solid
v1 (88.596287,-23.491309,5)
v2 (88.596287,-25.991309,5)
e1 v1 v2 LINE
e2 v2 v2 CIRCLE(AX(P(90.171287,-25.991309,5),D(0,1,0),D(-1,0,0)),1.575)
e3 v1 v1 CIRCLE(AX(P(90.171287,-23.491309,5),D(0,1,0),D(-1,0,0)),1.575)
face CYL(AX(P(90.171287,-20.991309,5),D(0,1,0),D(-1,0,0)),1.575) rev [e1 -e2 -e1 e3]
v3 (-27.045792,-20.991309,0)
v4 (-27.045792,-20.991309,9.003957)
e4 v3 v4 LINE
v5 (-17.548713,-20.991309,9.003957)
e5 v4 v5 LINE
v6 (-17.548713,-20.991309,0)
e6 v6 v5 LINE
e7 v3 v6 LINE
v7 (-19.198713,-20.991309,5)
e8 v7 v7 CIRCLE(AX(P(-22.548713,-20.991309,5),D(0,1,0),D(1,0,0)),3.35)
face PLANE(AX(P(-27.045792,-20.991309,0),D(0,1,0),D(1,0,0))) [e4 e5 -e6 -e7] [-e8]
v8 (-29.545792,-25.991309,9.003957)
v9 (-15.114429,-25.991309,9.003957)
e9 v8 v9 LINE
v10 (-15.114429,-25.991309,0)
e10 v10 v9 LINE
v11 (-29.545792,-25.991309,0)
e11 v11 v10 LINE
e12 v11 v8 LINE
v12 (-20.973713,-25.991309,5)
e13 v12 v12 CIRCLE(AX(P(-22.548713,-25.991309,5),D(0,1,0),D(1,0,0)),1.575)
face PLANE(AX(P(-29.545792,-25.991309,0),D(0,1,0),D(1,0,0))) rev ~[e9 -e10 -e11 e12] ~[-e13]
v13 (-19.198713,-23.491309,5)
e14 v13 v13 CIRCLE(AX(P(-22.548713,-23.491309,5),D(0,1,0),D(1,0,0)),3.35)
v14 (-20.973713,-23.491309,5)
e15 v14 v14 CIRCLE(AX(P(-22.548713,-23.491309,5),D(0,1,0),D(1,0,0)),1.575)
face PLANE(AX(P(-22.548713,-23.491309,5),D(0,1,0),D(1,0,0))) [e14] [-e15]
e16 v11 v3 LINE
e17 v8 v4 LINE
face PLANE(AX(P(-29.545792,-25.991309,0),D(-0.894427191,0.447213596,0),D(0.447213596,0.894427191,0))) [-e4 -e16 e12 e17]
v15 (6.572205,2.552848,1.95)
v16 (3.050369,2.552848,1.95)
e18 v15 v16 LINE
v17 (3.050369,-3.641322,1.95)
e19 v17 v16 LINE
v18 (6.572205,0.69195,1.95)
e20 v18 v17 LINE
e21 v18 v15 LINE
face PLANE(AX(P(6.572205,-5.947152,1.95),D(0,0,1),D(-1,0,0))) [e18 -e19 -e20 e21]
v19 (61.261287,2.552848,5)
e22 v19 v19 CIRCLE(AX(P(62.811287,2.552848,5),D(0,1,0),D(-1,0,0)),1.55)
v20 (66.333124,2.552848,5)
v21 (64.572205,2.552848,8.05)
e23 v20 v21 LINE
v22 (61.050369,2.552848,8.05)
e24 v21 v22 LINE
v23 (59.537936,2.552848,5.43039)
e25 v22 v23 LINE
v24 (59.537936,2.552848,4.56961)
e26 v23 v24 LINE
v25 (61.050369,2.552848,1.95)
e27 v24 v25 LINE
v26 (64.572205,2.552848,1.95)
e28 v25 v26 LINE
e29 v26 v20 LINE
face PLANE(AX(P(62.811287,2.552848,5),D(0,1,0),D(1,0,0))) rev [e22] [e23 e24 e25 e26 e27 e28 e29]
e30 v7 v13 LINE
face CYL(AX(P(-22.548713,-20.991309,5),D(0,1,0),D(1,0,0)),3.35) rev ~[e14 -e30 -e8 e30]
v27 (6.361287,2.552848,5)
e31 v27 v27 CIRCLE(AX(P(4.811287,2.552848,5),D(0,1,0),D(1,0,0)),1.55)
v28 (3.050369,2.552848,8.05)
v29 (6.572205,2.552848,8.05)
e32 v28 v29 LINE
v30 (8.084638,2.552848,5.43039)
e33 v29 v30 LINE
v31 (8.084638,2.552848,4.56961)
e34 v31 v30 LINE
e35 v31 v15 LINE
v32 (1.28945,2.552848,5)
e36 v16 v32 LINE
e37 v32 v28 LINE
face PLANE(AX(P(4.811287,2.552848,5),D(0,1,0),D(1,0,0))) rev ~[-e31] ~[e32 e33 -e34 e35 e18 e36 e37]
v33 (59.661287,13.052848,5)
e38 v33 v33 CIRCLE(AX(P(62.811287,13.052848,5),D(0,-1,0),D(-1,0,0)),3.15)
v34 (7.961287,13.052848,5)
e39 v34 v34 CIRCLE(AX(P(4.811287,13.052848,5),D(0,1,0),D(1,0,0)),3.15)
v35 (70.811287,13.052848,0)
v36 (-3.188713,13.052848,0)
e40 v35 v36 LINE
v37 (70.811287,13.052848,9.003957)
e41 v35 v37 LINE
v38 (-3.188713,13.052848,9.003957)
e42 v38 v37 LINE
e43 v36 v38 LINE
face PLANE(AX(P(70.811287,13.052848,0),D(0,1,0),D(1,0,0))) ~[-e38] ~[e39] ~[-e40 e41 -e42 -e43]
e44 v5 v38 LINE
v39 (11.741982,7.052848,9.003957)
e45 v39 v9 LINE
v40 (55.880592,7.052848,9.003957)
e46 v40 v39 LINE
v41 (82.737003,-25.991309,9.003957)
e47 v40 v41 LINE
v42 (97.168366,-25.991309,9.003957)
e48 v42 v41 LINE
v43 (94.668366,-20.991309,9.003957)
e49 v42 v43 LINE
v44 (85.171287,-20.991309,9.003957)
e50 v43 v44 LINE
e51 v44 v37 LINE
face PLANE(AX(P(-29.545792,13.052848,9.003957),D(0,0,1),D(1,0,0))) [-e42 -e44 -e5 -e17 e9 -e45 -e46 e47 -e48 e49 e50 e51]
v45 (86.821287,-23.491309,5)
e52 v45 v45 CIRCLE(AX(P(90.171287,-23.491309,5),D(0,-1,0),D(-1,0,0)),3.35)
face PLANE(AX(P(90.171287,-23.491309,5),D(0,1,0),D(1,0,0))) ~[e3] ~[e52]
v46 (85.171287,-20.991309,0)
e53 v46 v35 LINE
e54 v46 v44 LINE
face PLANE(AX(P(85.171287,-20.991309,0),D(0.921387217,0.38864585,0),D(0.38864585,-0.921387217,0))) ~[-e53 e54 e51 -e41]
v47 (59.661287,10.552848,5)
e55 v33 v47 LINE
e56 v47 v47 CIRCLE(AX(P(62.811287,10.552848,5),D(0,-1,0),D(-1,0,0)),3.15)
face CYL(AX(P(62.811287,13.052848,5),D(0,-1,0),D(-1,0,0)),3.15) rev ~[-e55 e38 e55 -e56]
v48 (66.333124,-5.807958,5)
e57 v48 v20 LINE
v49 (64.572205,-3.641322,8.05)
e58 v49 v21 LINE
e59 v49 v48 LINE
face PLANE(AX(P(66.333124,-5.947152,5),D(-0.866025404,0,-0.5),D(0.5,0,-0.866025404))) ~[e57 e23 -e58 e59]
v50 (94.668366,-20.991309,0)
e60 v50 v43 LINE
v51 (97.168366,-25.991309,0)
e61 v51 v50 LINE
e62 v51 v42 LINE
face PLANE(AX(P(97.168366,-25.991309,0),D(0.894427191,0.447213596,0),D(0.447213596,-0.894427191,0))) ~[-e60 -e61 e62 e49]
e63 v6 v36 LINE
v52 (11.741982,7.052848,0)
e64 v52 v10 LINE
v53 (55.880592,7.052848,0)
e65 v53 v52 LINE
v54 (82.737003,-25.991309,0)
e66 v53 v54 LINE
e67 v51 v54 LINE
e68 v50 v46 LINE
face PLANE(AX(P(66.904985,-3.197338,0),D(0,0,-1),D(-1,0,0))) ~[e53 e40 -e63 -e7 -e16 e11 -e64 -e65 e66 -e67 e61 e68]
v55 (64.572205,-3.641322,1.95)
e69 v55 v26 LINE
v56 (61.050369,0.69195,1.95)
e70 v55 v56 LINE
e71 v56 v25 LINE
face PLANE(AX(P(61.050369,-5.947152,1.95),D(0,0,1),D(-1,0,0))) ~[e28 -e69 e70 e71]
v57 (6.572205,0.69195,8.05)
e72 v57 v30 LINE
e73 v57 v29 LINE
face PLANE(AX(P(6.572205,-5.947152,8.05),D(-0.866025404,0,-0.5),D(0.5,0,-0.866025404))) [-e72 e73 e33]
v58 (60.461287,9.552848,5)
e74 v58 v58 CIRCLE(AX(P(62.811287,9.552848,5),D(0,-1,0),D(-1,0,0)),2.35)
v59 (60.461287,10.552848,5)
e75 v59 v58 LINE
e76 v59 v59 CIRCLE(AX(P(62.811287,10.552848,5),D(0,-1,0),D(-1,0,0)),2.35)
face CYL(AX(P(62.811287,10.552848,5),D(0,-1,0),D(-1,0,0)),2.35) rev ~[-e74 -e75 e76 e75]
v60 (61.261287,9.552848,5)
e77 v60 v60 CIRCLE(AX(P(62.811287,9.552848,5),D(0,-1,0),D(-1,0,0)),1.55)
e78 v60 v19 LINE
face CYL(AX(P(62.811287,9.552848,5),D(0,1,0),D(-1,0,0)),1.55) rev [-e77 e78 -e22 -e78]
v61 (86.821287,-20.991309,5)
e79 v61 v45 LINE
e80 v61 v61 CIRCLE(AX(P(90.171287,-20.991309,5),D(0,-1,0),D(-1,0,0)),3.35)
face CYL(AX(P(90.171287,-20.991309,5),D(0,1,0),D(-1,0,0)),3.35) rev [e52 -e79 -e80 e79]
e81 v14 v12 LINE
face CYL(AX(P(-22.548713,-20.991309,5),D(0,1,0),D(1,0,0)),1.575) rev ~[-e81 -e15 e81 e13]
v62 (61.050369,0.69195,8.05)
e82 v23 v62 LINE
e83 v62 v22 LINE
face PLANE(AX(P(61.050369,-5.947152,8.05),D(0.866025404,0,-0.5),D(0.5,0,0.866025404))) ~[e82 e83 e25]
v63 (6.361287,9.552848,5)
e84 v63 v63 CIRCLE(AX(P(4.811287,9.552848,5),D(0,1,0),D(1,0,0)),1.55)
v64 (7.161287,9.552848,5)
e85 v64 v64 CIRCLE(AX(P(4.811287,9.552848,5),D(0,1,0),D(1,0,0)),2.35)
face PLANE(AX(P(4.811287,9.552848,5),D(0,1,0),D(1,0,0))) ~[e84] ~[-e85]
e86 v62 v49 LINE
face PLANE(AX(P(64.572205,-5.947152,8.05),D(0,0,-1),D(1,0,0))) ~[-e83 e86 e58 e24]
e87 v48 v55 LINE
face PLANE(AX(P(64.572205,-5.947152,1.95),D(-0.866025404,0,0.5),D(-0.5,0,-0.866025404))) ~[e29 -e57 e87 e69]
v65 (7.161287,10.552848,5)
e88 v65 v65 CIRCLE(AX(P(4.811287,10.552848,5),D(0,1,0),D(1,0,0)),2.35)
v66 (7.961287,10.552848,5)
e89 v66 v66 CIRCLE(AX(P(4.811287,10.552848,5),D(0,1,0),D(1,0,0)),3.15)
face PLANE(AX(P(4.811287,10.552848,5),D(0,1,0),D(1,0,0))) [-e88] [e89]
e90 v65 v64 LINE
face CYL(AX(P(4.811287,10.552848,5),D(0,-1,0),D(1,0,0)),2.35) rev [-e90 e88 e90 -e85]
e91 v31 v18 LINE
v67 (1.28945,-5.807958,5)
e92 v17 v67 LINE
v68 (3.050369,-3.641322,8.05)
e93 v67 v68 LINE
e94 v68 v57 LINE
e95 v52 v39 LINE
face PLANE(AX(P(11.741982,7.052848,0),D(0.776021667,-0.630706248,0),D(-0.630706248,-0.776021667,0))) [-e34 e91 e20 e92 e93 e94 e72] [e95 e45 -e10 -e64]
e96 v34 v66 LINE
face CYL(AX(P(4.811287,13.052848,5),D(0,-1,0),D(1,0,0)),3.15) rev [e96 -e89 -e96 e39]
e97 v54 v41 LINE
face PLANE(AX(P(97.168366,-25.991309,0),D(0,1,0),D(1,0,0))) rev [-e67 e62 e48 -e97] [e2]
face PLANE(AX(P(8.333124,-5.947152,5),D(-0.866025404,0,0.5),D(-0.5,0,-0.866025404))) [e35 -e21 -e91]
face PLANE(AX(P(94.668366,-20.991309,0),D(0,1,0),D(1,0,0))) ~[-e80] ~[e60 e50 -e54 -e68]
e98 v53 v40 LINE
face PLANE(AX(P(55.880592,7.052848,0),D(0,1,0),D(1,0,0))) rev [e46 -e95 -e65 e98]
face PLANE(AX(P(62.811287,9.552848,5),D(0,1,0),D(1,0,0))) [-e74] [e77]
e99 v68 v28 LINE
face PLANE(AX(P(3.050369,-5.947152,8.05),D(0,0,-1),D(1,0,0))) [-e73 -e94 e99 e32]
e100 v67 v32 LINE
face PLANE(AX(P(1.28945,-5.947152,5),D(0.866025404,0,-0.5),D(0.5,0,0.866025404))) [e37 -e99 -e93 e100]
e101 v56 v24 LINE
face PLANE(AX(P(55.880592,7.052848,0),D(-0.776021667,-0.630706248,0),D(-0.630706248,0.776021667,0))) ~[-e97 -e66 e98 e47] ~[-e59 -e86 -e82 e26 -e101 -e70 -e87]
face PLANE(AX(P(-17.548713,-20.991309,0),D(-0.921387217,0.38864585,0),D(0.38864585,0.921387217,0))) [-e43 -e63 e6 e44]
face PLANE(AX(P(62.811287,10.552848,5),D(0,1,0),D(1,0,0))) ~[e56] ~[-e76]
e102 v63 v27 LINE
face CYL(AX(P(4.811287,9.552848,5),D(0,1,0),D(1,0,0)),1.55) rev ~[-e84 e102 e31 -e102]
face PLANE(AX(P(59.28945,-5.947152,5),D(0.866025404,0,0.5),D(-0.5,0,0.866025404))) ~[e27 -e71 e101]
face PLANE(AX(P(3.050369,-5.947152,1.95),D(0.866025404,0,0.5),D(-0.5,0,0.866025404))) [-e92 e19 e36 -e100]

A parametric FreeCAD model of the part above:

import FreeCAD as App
import Part
import Sketcher

V = App.Vector
Q = App.Units.Quantity

doc = App.newDocument("Part")
body = doc.addObject("PartDesign::Body", "Body")

sketch1 = doc.addObject("Sketcher::SketchObject", "Sketch")
body.addObject(sketch1)
sketch1.AttachmentSupport = (doc.XY_Plane, [""])
sketch1.MapMode = "FlatFace"
sketch1.addGeometry(Part.LineSegment(V(34, 13, 0), V(-3, 13, 0)), False)
sketch1.addGeometry(Part.LineSegment(V(-3, 13, 0), V(-18, -21, 0)), False)
sketch1.addGeometry(Part.LineSegment(V(-18, -21, 0), V(-27, -21, 0)), False)
sketch1.addGeometry(Part.LineSegment(V(-27, -21, 0), V(-30, -26, 0)), False)
sketch1.addGeometry(Part.LineSegment(V(-30, -26, 0), V(-15, -26, 0)), False)
sketch1.addGeometry(Part.LineSegment(V(-15, -26, 0), V(12, 7, 0)), False)
sketch1.addGeometry(Part.LineSegment(V(12, 7, 0), V(34, 7, 0)), False)
sketch1.addGeometry(Part.LineSegment(V(34, 7, 0), V(34, 13, 0)), False)
sketch1.addConstraint(Sketcher.Constraint("Coincident", 0, 2, 1, 1))
sketch1.addConstraint(Sketcher.Constraint("Coincident", 1, 2, 2, 1))
sketch1.addConstraint(Sketcher.Constraint("Coincident", 2, 2, 3, 1))
sketch1.addConstraint(Sketcher.Constraint("Coincident", 3, 2, 4, 1))
sketch1.addConstraint(Sketcher.Constraint("Coincident", 4, 2, 5, 1))
sketch1.addConstraint(Sketcher.Constraint("Coincident", 5, 2, 6, 1))
sketch1.addConstraint(Sketcher.Constraint("Coincident", 6, 2, 7, 1))
sketch1.addConstraint(Sketcher.Constraint("Coincident", 7, 2, 0, 1))
sketch1.addConstraint(Sketcher.Constraint("Horizontal", 0))
sketch1.addConstraint(Sketcher.Constraint("Horizontal", 2))
sketch1.addConstraint(Sketcher.Constraint("Horizontal", 4))
sketch1.addConstraint(Sketcher.Constraint("Horizontal", 6))
sketch1.addConstraint(Sketcher.Constraint("Vertical", 7))
sketch1.addConstraint(Sketcher.Constraint("DistanceX", 0, 2, 0, 1, 37.0))
sketch1.addConstraint(Sketcher.Constraint("DistanceY", 7, 1, 7, 2, 6.0))
sketch1.addConstraint(Sketcher.Constraint("DistanceY", 3, 2, 2, 2, 5.0))
sketch1.addConstraint(Sketcher.Constraint("DistanceX", 3, 2, 2, 2, 2.5))
sketch1.addConstraint(Sketcher.Constraint("DistanceX", 1, 2, 0, 2, 14.36))
sketch1.addConstraint(Sketcher.Constraint("DistanceX", 2, 2, 2, 1, 9.497079))
sketch1.addConstraint(Sketcher.Constraint("DistanceX", 4, 1, 4, 2, 14.431363))
sketch1.addConstraint(Sketcher.Constraint("DistanceX", 6, 1, 6, 2, 22.069305))
sketch1.addConstraint(Sketcher.Constraint("DistanceY", -1, 1, 0, 2, 13.052848))
sketch1.addConstraint(Sketcher.Constraint("DistanceY", 1, 2, -1, 1, 20.991309))
sketch1.addConstraint(Sketcher.Constraint("DistanceX", 2, 2, -1, 1, 27.045792))
pad1 = doc.addObject("PartDesign::Pad", "Pad")
body.addObject(pad1)
pad1.Profile = sketch1
pad1.Length = 10
doc.recompute()

datumplane = doc.addObject("PartDesign::Plane", "DatumPlane")
body.addObject(datumplane)
datumplane.AttachmentSupport = (doc.YZ_Plane, [""])
datumplane.MapMode = "FlatFace"
datumplane.AttachmentOffset = App.Placement(V(0, 0, 33.811287), App.Rotation())
mirrored = doc.addObject("PartDesign::Mirrored", "Mirrored")
body.addObject(mirrored)
mirrored.Originals = [pad1]
mirrored.MirrorPlane = (datumplane, [""])
body.Tip = mirrored

sketch2 = doc.addObject("Sketcher::SketchObject", "Sketch001")
body.addObject(sketch2)
sketch2.AttachmentSupport = (doc.XY_Plane, [""])
sketch2.MapMode = "FlatFace"
sketch2.AttachmentOffset = App.Placement(V(0, 0, 5), App.Rotation())
sketch2.addGeometry(Part.LineSegment(V(8, 10.6, 0), V(8, 13.1, 0)), False)
sketch2.addGeometry(Part.LineSegment(V(8, 13.1, 0), V(4.8, 13.1, 0)), False)
sketch2.addGeometry(Part.LineSegment(V(4.8, 13.1, 0), V(4.8, 9.6, 0)), False)
sketch2.addGeometry(Part.LineSegment(V(4.8, 9.6, 0), V(7.2, 9.6, 0)), False)
sketch2.addGeometry(Part.LineSegment(V(7.2, 9.6, 0), V(7.2, 10.6, 0)), False)
sketch2.addGeometry(Part.LineSegment(V(7.2, 10.6, 0), V(8, 10.6, 0)), False)
sketch2.addGeometry(Part.LineSegment(V(4.8, 9.6, 0), V(4.8, 13.1, 0)), True)
sketch2.addConstraint(Sketcher.Constraint("Coincident", 0, 2, 1, 1))
sketch2.addConstraint(Sketcher.Constraint("Coincident", 1, 2, 2, 1))
sketch2.addConstraint(Sketcher.Constraint("Coincident", 2, 2, 3, 1))
sketch2.addConstraint(Sketcher.Constraint("Coincident", 3, 2, 4, 1))
sketch2.addConstraint(Sketcher.Constraint("Coincident", 4, 2, 5, 1))
sketch2.addConstraint(Sketcher.Constraint("Coincident", 5, 2, 0, 1))
sketch2.addConstraint(Sketcher.Constraint("Vertical", 0))
sketch2.addConstraint(Sketcher.Constraint("Horizontal", 1))
sketch2.addConstraint(Sketcher.Constraint("Vertical", 2))
sketch2.addConstraint(Sketcher.Constraint("Horizontal", 3))
sketch2.addConstraint(Sketcher.Constraint("Vertical", 4))
sketch2.addConstraint(Sketcher.Constraint("Horizontal", 5))
sketch2.addConstraint(Sketcher.Constraint("Vertical", 6))
sketch2.addConstraint(Sketcher.Constraint("Coincident", 6, 1, 2, 2))
sketch2.addConstraint(Sketcher.Constraint("Horizontal", 0, 2, 6, 2))
sketch2.addConstraint(Sketcher.Constraint("DistanceY", 4, 1, 4, 2, 1.0))
sketch2.addConstraint(Sketcher.Constraint("DistanceX", 5, 1, 5, 2, 0.8))
sketch2.addConstraint(Sketcher.Constraint("DistanceY", 0, 1, 0, 2, 2.5))
sketch2.addConstraint(Sketcher.Constraint("DistanceX", 1, 2, 1, 1, 3.15))
sketch2.addConstraint(Sketcher.Constraint("DistanceY", -1, 1, 0, 2, 13.052848))
sketch2.addConstraint(Sketcher.Constraint("DistanceX", -1, 1, 0, 2, 7.961287))
groove = doc.addObject("PartDesign::Groove", "Groove")
body.addObject(groove)
groove.Profile = sketch2
groove.ReferenceAxis = (sketch2, ["Axis0"])
groove.Angle = 360

sketch3 = doc.addObject("Sketcher::SketchObject", "Sketch002")
body.addObject(sketch3)
sketch3.AttachmentSupport = (doc.XZ_Plane, [""])
sketch3.MapMode = "FlatFace"
sketch3.AttachmentOffset = App.Placement(V(0, 0, -9.552848), App.Rotation())
sketch3.addGeometry(Part.Circle(V(4.8, 5, 0), V(0, 0, 1), 1.6), False)
sketch3.addConstraint(Sketcher.Constraint("Diameter", 0, 3.1))
sketch3.addConstraint(Sketcher.Constraint("DistanceY", -1, 1, 0, 3, 5.0))
sketch3.addConstraint(Sketcher.Constraint("DistanceX", -1, 1, 0, 3, 4.811287))
pocket1 = doc.addObject("PartDesign::Pocket", "Pocket")
body.addObject(pocket1)
pocket1.Profile = sketch3
pocket1.Type = "ThroughAll"
pocket1.Reversed = True

sketch4 = doc.addObject("Sketcher::SketchObject", "Sketch003")
body.addObject(sketch4)
sketch4.AttachmentSupport = (doc.XZ_Plane, [""])
sketch4.MapMode = "FlatFace"
sketch4.AttachmentOffset = App.Placement(V(0, 0, 5.947152), App.Rotation())
sketch4.addGeometry(Part.LineSegment(V(8.3, 5, 0), V(6.6, 1.9, 0)), False)
sketch4.addGeometry(Part.LineSegment(V(6.6, 1.9, 0), V(3.1, 1.9, 0)), False)
sketch4.addGeometry(Part.LineSegment(V(3.1, 1.9, 0), V(1.3, 5, 0)), False)
sketch4.addGeometry(Part.LineSegment(V(1.3, 5, 0), V(3.1, 8.1, 0)), False)
sketch4.addGeometry(Part.LineSegment(V(3.1, 8.1, 0), V(6.6, 8.1, 0)), False)
sketch4.addGeometry(Part.LineSegment(V(6.6, 8.1, 0), V(8.3, 5, 0)), False)
sketch4.addConstraint(Sketcher.Constraint("Coincident", 0, 2, 1, 1))
sketch4.addConstraint(Sketcher.Constraint("Coincident", 1, 2, 2, 1))
sketch4.addConstraint(Sketcher.Constraint("Coincident", 2, 2, 3, 1))
sketch4.addConstraint(Sketcher.Constraint("Coincident", 3, 2, 4, 1))
sketch4.addConstraint(Sketcher.Constraint("Coincident", 4, 2, 5, 1))
sketch4.addConstraint(Sketcher.Constraint("Coincident", 5, 2, 0, 1))
sketch4.addConstraint(Sketcher.Constraint("Horizontal", 1))
sketch4.addConstraint(Sketcher.Constraint("Horizontal", 4))
sketch4.addConstraint(Sketcher.Constraint("Parallel", 0, 3))
sketch4.addConstraint(Sketcher.Constraint("Parallel", 2, 5))
sketch4.addConstraint(Sketcher.Constraint("Horizontal", 2, 2, 5, 2))
sketch4.addConstraint(Sketcher.Constraint("Vertical", 1, 2, 3, 2))
sketch4.addConstraint(Sketcher.Constraint("Vertical", 0, 2, 4, 2))
sketch4.addConstraint(Sketcher.Constraint("Angle", 0, Q("-120 deg")))
sketch4.addConstraint(Sketcher.Constraint("DistanceY", -1, 1, 2, 2, 5.0))
sketch4.addConstraint(Sketcher.Constraint("DistanceY", 1, 2, 3, 2, 6.1))
sketch4.addConstraint(Sketcher.Constraint("DistanceX", 1, 2, 1, 1, 3.521837))
sketch4.addConstraint(Sketcher.Constraint("DistanceX", -1, 1, 1, 2, 3.050369))
pocket2 = doc.addObject("PartDesign::Pocket", "Pocket001")
body.addObject(pocket2)
pocket2.Profile = sketch4
pocket2.Length = 8.5

sketch5 = doc.addObject("Sketcher::SketchObject", "Sketch004")
body.addObject(sketch5)
sketch5.AttachmentSupport = (doc.XZ_Plane, [""])
sketch5.MapMode = "FlatFace"
sketch5.AttachmentOffset = App.Placement(V(0, 0, 20.991309), App.Rotation())
sketch5.addGeometry(Part.Circle(V(-22.5, 5, 0), V(0, 0, 1), 1.6), False)
sketch5.addConstraint(Sketcher.Constraint("Diameter", 0, 3.15))
sketch5.addConstraint(Sketcher.Constraint("DistanceY", -1, 1, 0, 3, 5.0))
sketch5.addConstraint(Sketcher.Constraint("DistanceX", 0, 3, -1, 1, 22.548713))
pocket3 = doc.addObject("PartDesign::Pocket", "Pocket002")
body.addObject(pocket3)
pocket3.Profile = sketch5
pocket3.Length = 10
pocket3.Reversed = True

sketch6 = doc.addObject("Sketcher::SketchObject", "Sketch005")
body.addObject(sketch6)
sketch6.AttachmentSupport = (doc.XZ_Plane, [""])
sketch6.MapMode = "FlatFace"
sketch6.AttachmentOffset = App.Placement(V(0, 0, 20.991309), App.Rotation())
sketch6.addGeometry(Part.Circle(V(-22.5, 5, 0), V(0, 0, 1), 3.4), False)
sketch6.addConstraint(Sketcher.Constraint("Diameter", 0, 6.7))
sketch6.addConstraint(Sketcher.Constraint("DistanceY", -1, 1, 0, 3, 5.0))
sketch6.addConstraint(Sketcher.Constraint("DistanceX", 0, 3, -1, 1, 22.548713))
pocket4 = doc.addObject("PartDesign::Pocket", "Pocket003")
body.addObject(pocket4)
pocket4.Profile = sketch6
pocket4.Length = 2.5
pocket4.Reversed = True
doc.recompute()

datumplane2 = doc.addObject("PartDesign::Plane", "DatumPlane001")
body.addObject(datumplane2)
datumplane2.AttachmentSupport = (doc.YZ_Plane, [""])
datumplane2.MapMode = "FlatFace"
datumplane2.AttachmentOffset = App.Placement(V(0, 0, 33.811287), App.Rotation())
mirrored2 = doc.addObject("PartDesign::Mirrored", "Mirrored001")
body.addObject(mirrored2)
mirrored2.Originals = [groove, pocket1, pocket2, pocket3, pocket4]
mirrored2.MirrorPlane = (datumplane2, [""])
body.Tip = mirrored2

sketch7 = doc.addObject("Sketcher::SketchObject", "Sketch006")
body.addObject(sketch7)
sketch7.AttachmentSupport = (doc.XZ_Plane, [""])
sketch7.MapMode = "FlatFace"
sketch7.AttachmentOffset = App.Placement(V(0, 0, -13.052848), App.Rotation())
sketch7.addGeometry(Part.LineSegment(V(-29.5, 9, 0), V(-29.5, 10, 0)), False)
sketch7.addGeometry(Part.LineSegment(V(-29.5, 10, 0), V(97.2, 10, 0)), False)
sketch7.addGeometry(Part.LineSegment(V(97.2, 10, 0), V(97.2, 9, 0)), False)
sketch7.addGeometry(Part.LineSegment(V(97.2, 9, 0), V(-29.5, 9, 0)), False)
sketch7.addConstraint(Sketcher.Constraint("Coincident", 0, 2, 1, 1))
sketch7.addConstraint(Sketcher.Constraint("Coincident", 1, 2, 2, 1))
sketch7.addConstraint(Sketcher.Constraint("Coincident", 2, 2, 3, 1))
sketch7.addConstraint(Sketcher.Constraint("Coincident", 3, 2, 0, 1))
sketch7.addConstraint(Sketcher.Constraint("Vertical", 0))
sketch7.addConstraint(Sketcher.Constraint("Horizontal", 1))
sketch7.addConstraint(Sketcher.Constraint("Vertical", 2))
sketch7.addConstraint(Sketcher.Constraint("Horizontal", 3))
sketch7.addConstraint(Sketcher.Constraint("DistanceY", -1, 1, 0, 2, 10.0))
sketch7.addConstraint(Sketcher.Constraint("DistanceX", 1, 1, 1, 2, 126.714157))
sketch7.addConstraint(Sketcher.Constraint("DistanceY", 0, 1, 0, 2, 0.996043))
sketch7.addConstraint(Sketcher.Constraint("DistanceX", 0, 2, -1, 1, 29.545792))
pocket5 = doc.addObject("PartDesign::Pocket", "Pocket004")
body.addObject(pocket5)
pocket5.Profile = sketch7
pocket5.Type = "ThroughAll"
pocket5.Reversed = True

doc.recompute()
